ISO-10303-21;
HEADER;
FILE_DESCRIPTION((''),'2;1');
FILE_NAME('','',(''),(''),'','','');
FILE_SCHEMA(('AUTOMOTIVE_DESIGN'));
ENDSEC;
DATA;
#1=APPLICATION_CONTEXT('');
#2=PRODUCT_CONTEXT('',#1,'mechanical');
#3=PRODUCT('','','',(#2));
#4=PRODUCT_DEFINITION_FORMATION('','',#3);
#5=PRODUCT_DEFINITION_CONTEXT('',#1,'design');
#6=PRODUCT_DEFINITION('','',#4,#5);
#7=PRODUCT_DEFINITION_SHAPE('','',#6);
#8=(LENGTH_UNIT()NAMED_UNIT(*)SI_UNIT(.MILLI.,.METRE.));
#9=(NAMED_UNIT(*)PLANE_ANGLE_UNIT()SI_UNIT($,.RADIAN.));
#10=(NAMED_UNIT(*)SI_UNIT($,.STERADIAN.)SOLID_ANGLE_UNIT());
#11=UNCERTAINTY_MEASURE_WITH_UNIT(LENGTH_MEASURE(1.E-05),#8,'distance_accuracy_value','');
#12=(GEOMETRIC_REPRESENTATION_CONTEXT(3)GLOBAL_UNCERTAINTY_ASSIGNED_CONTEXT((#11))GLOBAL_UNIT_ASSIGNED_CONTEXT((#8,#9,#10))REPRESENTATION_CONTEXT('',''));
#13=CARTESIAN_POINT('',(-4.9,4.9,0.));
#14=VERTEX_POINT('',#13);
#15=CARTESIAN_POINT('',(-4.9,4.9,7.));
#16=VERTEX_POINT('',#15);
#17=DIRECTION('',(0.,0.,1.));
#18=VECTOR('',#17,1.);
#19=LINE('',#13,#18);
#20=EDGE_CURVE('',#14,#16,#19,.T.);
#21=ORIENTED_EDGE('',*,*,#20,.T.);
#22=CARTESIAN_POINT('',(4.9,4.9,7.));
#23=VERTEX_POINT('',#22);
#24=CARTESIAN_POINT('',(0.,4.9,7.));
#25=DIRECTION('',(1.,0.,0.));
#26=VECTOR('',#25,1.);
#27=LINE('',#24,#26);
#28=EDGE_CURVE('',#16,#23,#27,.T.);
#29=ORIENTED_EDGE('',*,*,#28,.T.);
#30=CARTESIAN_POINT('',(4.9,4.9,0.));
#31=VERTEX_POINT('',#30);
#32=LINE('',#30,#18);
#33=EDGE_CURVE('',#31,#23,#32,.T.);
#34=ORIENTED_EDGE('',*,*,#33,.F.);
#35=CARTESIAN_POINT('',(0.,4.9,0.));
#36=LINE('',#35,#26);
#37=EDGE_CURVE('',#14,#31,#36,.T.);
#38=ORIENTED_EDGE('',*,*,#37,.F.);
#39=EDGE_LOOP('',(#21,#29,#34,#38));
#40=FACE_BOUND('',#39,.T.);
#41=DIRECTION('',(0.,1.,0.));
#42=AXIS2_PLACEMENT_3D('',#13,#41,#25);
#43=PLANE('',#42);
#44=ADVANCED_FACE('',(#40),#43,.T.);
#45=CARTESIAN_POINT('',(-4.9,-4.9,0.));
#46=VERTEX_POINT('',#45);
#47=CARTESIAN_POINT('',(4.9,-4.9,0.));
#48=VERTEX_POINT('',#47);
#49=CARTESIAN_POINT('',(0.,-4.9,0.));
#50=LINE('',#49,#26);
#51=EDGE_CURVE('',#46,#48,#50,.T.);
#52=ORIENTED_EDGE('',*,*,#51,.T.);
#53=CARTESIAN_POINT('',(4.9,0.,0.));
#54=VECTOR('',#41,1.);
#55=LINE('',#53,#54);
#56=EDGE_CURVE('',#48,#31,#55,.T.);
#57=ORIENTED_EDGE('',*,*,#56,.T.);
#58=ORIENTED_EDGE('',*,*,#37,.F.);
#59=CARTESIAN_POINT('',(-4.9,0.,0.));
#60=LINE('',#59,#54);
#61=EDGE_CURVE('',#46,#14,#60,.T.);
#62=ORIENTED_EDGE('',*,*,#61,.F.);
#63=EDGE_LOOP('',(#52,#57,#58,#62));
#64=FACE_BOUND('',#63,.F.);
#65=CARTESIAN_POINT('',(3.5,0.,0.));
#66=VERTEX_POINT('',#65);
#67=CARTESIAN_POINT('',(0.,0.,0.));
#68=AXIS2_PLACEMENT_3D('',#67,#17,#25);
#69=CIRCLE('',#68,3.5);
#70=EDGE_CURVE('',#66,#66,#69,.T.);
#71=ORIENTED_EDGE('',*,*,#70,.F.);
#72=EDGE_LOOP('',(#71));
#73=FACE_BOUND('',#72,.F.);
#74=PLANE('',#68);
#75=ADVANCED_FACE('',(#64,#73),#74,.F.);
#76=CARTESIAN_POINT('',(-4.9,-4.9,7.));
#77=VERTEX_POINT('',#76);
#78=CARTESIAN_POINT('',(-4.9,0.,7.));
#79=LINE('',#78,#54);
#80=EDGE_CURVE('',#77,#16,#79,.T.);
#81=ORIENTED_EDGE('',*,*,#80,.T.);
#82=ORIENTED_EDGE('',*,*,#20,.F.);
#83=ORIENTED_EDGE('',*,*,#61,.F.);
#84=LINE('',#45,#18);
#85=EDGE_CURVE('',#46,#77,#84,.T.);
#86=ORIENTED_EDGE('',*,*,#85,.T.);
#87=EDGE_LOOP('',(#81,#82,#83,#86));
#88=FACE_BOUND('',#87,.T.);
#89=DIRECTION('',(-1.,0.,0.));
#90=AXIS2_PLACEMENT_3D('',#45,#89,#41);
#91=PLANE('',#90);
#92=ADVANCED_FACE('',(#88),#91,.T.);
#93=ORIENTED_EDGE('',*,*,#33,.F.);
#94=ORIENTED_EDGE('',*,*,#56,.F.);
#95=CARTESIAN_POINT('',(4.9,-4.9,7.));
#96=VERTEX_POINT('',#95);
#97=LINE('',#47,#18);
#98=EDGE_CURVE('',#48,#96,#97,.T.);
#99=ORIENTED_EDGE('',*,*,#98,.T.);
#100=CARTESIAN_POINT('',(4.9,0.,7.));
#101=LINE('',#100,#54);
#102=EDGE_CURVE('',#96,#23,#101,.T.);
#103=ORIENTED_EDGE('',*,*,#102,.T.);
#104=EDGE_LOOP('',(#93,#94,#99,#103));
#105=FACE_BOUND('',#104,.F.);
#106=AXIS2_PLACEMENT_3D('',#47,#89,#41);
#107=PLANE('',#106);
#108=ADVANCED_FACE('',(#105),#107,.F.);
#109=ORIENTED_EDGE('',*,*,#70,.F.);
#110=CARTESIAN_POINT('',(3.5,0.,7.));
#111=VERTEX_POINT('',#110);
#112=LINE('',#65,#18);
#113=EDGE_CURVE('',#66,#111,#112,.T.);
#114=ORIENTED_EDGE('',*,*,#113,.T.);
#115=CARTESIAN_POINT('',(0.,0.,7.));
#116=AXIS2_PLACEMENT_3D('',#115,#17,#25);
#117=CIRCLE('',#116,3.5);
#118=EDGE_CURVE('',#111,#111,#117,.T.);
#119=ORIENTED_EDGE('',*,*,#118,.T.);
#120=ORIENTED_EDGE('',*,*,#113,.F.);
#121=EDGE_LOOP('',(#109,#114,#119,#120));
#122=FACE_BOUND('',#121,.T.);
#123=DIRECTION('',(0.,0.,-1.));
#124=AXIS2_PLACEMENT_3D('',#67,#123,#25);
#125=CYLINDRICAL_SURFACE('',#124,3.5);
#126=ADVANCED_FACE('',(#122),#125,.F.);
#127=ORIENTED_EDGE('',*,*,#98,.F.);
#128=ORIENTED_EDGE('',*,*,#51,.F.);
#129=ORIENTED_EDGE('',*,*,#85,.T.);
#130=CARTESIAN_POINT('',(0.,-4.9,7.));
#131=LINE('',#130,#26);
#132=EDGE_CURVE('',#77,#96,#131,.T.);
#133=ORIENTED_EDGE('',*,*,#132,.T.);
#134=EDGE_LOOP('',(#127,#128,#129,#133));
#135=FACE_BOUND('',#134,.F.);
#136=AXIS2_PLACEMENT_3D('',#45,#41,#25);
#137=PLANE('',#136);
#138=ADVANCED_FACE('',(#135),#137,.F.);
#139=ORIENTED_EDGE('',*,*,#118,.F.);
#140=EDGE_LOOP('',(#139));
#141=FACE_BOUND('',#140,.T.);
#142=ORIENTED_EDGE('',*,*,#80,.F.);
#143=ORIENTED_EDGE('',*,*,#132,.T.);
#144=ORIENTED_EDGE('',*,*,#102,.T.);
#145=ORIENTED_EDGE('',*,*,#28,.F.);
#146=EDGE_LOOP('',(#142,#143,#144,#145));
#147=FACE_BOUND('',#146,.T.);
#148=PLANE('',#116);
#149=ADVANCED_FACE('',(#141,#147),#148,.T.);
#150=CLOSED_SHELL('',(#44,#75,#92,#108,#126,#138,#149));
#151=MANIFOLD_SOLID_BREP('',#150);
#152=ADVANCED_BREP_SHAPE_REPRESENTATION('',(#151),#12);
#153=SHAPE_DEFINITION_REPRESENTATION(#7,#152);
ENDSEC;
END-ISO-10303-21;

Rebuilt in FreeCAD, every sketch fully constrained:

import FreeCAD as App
import Part
import Sketcher

V = App.Vector

doc = App.newDocument("Part")
body = doc.addObject("PartDesign::Body", "Body")

# Sketch on XY plane
sketch1 = body.newObject("Sketcher::SketchObject", "Sketch")
sketch1.AttachmentSupport = (doc.getObject("XY_Plane"), [""])
sketch1.MapMode = "FlatFace"
sketch1.addGeometry([
    Part.LineSegment(V(-4.9, 4.9, 0), V(-4.9, -4.9, 0)),  # 0
    Part.LineSegment(V(-4.9, -4.9, 0), V(4.9, -4.9, 0)),  # 1
    Part.LineSegment(V(4.9, -4.9, 0), V(4.9, 4.9, 0)),  # 2
    Part.LineSegment(V(4.9, 4.9, 0), V(-4.9, 4.9, 0)),  # 3
    Part.Circle(V(0, 0, 0), V(0, 0, 1), 3.5),  # 4
], False)
sketch1.addConstraint([
    Sketcher.Constraint("Coincident", 0, 2, 1, 1),
    Sketcher.Constraint("Coincident", 1, 2, 2, 1),
    Sketcher.Constraint("Coincident", 2, 2, 3, 1),
    Sketcher.Constraint("Coincident", 3, 2, 0, 1),
    Sketcher.Constraint("Vertical", 0),
    Sketcher.Constraint("Horizontal", 1),
    Sketcher.Constraint("Vertical", 2),
    Sketcher.Constraint("Horizontal", 3),
    Sketcher.Constraint("Coincident", 4, 3, -1, 1),
    Sketcher.Constraint("Symmetric", 0, 2, 2, 2, -1, 1),
    Sketcher.Constraint("Equal", 3, 0),
    Sketcher.Constraint("Diameter", 4, 7.0),
    Sketcher.Constraint("DistanceX", 1, 1, 1, 2, 9.8),
])
pad1 = body.newObject("PartDesign::Pad", "Pad")
pad1.Profile = sketch1
pad1.Length = 7

doc.recompute()
